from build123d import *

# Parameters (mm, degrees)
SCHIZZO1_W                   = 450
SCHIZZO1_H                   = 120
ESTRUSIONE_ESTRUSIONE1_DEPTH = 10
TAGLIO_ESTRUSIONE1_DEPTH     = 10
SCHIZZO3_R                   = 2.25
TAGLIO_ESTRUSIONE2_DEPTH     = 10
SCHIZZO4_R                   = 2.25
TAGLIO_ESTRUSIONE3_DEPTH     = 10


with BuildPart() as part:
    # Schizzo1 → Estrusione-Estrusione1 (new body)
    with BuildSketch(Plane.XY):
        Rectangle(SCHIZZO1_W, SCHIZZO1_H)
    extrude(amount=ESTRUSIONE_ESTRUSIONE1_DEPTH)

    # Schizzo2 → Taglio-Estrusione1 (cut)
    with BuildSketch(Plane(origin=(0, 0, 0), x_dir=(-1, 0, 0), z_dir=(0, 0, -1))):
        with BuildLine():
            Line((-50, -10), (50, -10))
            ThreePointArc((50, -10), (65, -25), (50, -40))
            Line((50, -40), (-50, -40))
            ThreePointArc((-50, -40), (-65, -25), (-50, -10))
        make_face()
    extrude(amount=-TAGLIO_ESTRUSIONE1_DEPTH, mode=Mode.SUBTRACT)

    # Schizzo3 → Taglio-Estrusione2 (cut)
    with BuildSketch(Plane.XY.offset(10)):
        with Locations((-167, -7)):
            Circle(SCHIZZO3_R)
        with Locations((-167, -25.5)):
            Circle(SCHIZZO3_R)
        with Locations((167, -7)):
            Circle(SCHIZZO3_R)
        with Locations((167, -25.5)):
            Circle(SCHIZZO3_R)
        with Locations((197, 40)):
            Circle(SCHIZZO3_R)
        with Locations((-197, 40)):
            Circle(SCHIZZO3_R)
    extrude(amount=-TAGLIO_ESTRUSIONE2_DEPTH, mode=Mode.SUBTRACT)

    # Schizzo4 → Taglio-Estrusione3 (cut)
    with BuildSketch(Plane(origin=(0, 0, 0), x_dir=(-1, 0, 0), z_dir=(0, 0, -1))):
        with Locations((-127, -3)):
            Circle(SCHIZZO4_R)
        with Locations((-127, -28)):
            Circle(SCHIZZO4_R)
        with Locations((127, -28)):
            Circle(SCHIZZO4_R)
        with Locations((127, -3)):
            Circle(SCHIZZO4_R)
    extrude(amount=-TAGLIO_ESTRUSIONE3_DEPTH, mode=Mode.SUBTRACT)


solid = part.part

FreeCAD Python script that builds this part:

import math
import FreeCAD as App
import Part
import Sketcher

V = App.Vector

doc = App.newDocument("Part")
body = doc.addObject("PartDesign::Body", "Body")

# Sketch on XY plane
sketch1 = body.newObject("Sketcher::SketchObject", "Sketch")
sketch1.AttachmentSupport = (doc.getObject("XY_Plane"), [""])
sketch1.MapMode = "FlatFace"
sketch1.addGeometry(Part.LineSegment(V(-225, 60, 0), V(-225, -60, 0)), False)
sketch1.addGeometry(Part.LineSegment(V(-225, -60, 0), V(225, -60, 0)), False)
sketch1.addGeometry(Part.LineSegment(V(225, -60, 0), V(225, 60, 0)), False)
sketch1.addGeometry(Part.LineSegment(V(225, 60, 0), V(-225, 60, 0)), False)
sketch1.addConstraint(Sketcher.Constraint("Coincident", 0, 2, 1, 1))
sketch1.addConstraint(Sketcher.Constraint("Coincident", 1, 2, 2, 1))
sketch1.addConstraint(Sketcher.Constraint("Coincident", 2, 2, 3, 1))
sketch1.addConstraint(Sketcher.Constraint("Coincident", 3, 2, 0, 1))
sketch1.addConstraint(Sketcher.Constraint("Vertical", 0))
sketch1.addConstraint(Sketcher.Constraint("Horizontal", 1))
sketch1.addConstraint(Sketcher.Constraint("Vertical", 2))
sketch1.addConstraint(Sketcher.Constraint("Horizontal", 3))
sketch1.addConstraint(Sketcher.Constraint("Symmetric", 0, 2, 2, 2, -1, 1))
sketch1.addConstraint(Sketcher.Constraint("DistanceX", 1, 1, 1, 2, 450.0))
sketch1.addConstraint(Sketcher.Constraint("DistanceY", 0, 2, 0, 1, 120.0))
pad1 = body.newObject("PartDesign::Pad", "Pad")
pad1.Profile = sketch1
pad1.Length = 10

# Sketch on XY plane
sketch2 = body.newObject("Sketcher::SketchObject", "Sketch001")
sketch2.AttachmentSupport = (doc.getObject("XY_Plane"), [""])
sketch2.MapMode = "FlatFace"
sketch2.addGeometry(Part.LineSegment(V(-50, -10, 0), V(50, -10, 0)), False)
sketch2.addGeometry(Part.ArcOfCircle(Part.Circle(V(50, -25, 0), V(0, 0, 1), 15), math.radians(-90), math.radians(90)), False)
sketch2.addGeometry(Part.LineSegment(V(50, -40, 0), V(-50, -40, 0)), False)
sketch2.addGeometry(Part.ArcOfCircle(Part.Circle(V(-50, -25, 0), V(0, 0, 1), 15), math.radians(90), math.radians(270)), False)
sketch2.addConstraint(Sketcher.Constraint("Tangent", 0, 2, 1, 2))
sketch2.addConstraint(Sketcher.Constraint("Tangent", 1, 1, 2, 1))
sketch2.addConstraint(Sketcher.Constraint("Tangent", 2, 2, 3, 2))
sketch2.addConstraint(Sketcher.Constraint("Tangent", 3, 1, 0, 1))
sketch2.addConstraint(Sketcher.Constraint("Horizontal", 0))
sketch2.addConstraint(Sketcher.Constraint("Horizontal", 2))
sketch2.addConstraint(Sketcher.Constraint("Radius", 1, 15.0))
sketch2.addConstraint(Sketcher.Constraint("DistanceX", 0, 1, 0, 2, 100.0))
sketch2.addConstraint(Sketcher.Constraint("DistanceX", -1, 1, 1, 3, 50.0))
sketch2.addConstraint(Sketcher.Constraint("DistanceY", 1, 3, -1, 1, 25.0))
pocket1 = body.newObject("PartDesign::Pocket", "Pocket")
pocket1.Profile = sketch2
pocket1.Length = 10
pocket1.Reversed = True

# Sketch on XY plane
sketch3 = body.newObject("Sketcher::SketchObject", "Sketch002")
sketch3.AttachmentSupport = (doc.getObject("XY_Plane"), [""])
sketch3.MapMode = "FlatFace"
sketch3.AttachmentOffset = App.Placement(V(0, 0, 10), App.Rotation())
sketch3.addGeometry(Part.Circle(V(-167, -7, 0), V(0, 0, 1), 2.2), False)
sketch3.addGeometry(Part.Circle(V(-167, -25.5, 0), V(0, 0, 1), 2.2), False)
sketch3.addGeometry(Part.Circle(V(167, -7, 0), V(0, 0, 1), 2.2), False)
sketch3.addGeometry(Part.Circle(V(167, -25.5, 0), V(0, 0, 1), 2.2), False)
sketch3.addGeometry(Part.Circle(V(197, 40, 0), V(0, 0, 1), 2.2), False)
sketch3.addGeometry(Part.Circle(V(-197, 40, 0), V(0, 0, 1), 2.2), False)
sketch3.addConstraint(Sketcher.Constraint("Equal", 0, 1))
sketch3.addConstraint(Sketcher.Constraint("Equal", 1, 2))
sketch3.addConstraint(Sketcher.Constraint("Equal", 2, 3))
sketch3.addConstraint(Sketcher.Constraint("Equal", 3, 4))
sketch3.addConstraint(Sketcher.Constraint("Equal", 4, 5))
sketch3.addConstraint(Sketcher.Constraint("Symmetric", 0, 3, 2, 3, -2))
sketch3.addConstraint(Sketcher.Constraint("Symmetric", 1, 3, 3, 3, -2))
sketch3.addConstraint(Sketcher.Constraint("Symmetric", 4, 3, 5, 3, -2))
sketch3.addConstraint(Sketcher.Constraint("Vertical", 0, 3, 1, 3))
sketch3.addConstraint(Sketcher.Constraint("Diameter", 0, 4.5))
sketch3.addConstraint(Sketcher.Constraint("DistanceX", 0, 3, -1, 1, 167.0))
sketch3.addConstraint(Sketcher.Constraint("DistanceY", 0, 3, -1, 1, 7.0))
sketch3.addConstraint(Sketcher.Constraint("DistanceX", -1, 1, 4, 3, 197.0))
sketch3.addConstraint(Sketcher.Constraint("DistanceY", -1, 1, 4, 3, 40.0))
sketch3.addConstraint(Sketcher.Constraint("DistanceY", 1, 3, -1, 1, 25.5))
pocket2 = body.newObject("PartDesign::Pocket", "Pocket001")
pocket2.Profile = sketch3
pocket2.Length = 10

# Sketch on XY plane
sketch4 = body.newObject("Sketcher::SketchObject", "Sketch003")
sketch4.AttachmentSupport = (doc.getObject("XY_Plane"), [""])
sketch4.MapMode = "FlatFace"
sketch4.addGeometry(Part.Circle(V(127, -3, 0), V(0, 0, 1), 2.2), False)
sketch4.addGeometry(Part.Circle(V(127, -28, 0), V(0, 0, 1), 2.2), False)
sketch4.addGeometry(Part.Circle(V(-127, -28, 0), V(0, 0, 1), 2.2), False)
sketch4.addGeometry(Part.Circle(V(-127, -3, 0), V(0, 0, 1), 2.2), False)
sketch4.addConstraint(Sketcher.Constraint("Equal", 0, 1))
sketch4.addConstraint(Sketcher.Constraint("Equal", 1, 2))
sketch4.addConstraint(Sketcher.Constraint("Equal", 2, 3))
sketch4.addConstraint(Sketcher.Constraint("Symmetric", 1, 3, 2, 3, -2))
sketch4.addConstraint(Sketcher.Constraint("Symmetric", 0, 3, 3, 3, -2))
sketch4.addConstraint(Sketcher.Constraint("Vertical", 0, 3, 1, 3))
sketch4.addConstraint(Sketcher.Constraint("Diameter", 0, 4.5))
sketch4.addConstraint(Sketcher.Constraint("DistanceX", -1, 1, 0, 3, 127.0))
sketch4.addConstraint(Sketcher.Constraint("DistanceY", 0, 3, -1, 1, 3.0))
sketch4.addConstraint(Sketcher.Constraint("DistanceY", 1, 3, -1, 1, 28.0))
pocket3 = body.newObject("PartDesign::Pocket", "Pocket002")
pocket3.Profile = sketch4
pocket3.Length = 10
pocket3.Reversed = True

doc.recompute()
